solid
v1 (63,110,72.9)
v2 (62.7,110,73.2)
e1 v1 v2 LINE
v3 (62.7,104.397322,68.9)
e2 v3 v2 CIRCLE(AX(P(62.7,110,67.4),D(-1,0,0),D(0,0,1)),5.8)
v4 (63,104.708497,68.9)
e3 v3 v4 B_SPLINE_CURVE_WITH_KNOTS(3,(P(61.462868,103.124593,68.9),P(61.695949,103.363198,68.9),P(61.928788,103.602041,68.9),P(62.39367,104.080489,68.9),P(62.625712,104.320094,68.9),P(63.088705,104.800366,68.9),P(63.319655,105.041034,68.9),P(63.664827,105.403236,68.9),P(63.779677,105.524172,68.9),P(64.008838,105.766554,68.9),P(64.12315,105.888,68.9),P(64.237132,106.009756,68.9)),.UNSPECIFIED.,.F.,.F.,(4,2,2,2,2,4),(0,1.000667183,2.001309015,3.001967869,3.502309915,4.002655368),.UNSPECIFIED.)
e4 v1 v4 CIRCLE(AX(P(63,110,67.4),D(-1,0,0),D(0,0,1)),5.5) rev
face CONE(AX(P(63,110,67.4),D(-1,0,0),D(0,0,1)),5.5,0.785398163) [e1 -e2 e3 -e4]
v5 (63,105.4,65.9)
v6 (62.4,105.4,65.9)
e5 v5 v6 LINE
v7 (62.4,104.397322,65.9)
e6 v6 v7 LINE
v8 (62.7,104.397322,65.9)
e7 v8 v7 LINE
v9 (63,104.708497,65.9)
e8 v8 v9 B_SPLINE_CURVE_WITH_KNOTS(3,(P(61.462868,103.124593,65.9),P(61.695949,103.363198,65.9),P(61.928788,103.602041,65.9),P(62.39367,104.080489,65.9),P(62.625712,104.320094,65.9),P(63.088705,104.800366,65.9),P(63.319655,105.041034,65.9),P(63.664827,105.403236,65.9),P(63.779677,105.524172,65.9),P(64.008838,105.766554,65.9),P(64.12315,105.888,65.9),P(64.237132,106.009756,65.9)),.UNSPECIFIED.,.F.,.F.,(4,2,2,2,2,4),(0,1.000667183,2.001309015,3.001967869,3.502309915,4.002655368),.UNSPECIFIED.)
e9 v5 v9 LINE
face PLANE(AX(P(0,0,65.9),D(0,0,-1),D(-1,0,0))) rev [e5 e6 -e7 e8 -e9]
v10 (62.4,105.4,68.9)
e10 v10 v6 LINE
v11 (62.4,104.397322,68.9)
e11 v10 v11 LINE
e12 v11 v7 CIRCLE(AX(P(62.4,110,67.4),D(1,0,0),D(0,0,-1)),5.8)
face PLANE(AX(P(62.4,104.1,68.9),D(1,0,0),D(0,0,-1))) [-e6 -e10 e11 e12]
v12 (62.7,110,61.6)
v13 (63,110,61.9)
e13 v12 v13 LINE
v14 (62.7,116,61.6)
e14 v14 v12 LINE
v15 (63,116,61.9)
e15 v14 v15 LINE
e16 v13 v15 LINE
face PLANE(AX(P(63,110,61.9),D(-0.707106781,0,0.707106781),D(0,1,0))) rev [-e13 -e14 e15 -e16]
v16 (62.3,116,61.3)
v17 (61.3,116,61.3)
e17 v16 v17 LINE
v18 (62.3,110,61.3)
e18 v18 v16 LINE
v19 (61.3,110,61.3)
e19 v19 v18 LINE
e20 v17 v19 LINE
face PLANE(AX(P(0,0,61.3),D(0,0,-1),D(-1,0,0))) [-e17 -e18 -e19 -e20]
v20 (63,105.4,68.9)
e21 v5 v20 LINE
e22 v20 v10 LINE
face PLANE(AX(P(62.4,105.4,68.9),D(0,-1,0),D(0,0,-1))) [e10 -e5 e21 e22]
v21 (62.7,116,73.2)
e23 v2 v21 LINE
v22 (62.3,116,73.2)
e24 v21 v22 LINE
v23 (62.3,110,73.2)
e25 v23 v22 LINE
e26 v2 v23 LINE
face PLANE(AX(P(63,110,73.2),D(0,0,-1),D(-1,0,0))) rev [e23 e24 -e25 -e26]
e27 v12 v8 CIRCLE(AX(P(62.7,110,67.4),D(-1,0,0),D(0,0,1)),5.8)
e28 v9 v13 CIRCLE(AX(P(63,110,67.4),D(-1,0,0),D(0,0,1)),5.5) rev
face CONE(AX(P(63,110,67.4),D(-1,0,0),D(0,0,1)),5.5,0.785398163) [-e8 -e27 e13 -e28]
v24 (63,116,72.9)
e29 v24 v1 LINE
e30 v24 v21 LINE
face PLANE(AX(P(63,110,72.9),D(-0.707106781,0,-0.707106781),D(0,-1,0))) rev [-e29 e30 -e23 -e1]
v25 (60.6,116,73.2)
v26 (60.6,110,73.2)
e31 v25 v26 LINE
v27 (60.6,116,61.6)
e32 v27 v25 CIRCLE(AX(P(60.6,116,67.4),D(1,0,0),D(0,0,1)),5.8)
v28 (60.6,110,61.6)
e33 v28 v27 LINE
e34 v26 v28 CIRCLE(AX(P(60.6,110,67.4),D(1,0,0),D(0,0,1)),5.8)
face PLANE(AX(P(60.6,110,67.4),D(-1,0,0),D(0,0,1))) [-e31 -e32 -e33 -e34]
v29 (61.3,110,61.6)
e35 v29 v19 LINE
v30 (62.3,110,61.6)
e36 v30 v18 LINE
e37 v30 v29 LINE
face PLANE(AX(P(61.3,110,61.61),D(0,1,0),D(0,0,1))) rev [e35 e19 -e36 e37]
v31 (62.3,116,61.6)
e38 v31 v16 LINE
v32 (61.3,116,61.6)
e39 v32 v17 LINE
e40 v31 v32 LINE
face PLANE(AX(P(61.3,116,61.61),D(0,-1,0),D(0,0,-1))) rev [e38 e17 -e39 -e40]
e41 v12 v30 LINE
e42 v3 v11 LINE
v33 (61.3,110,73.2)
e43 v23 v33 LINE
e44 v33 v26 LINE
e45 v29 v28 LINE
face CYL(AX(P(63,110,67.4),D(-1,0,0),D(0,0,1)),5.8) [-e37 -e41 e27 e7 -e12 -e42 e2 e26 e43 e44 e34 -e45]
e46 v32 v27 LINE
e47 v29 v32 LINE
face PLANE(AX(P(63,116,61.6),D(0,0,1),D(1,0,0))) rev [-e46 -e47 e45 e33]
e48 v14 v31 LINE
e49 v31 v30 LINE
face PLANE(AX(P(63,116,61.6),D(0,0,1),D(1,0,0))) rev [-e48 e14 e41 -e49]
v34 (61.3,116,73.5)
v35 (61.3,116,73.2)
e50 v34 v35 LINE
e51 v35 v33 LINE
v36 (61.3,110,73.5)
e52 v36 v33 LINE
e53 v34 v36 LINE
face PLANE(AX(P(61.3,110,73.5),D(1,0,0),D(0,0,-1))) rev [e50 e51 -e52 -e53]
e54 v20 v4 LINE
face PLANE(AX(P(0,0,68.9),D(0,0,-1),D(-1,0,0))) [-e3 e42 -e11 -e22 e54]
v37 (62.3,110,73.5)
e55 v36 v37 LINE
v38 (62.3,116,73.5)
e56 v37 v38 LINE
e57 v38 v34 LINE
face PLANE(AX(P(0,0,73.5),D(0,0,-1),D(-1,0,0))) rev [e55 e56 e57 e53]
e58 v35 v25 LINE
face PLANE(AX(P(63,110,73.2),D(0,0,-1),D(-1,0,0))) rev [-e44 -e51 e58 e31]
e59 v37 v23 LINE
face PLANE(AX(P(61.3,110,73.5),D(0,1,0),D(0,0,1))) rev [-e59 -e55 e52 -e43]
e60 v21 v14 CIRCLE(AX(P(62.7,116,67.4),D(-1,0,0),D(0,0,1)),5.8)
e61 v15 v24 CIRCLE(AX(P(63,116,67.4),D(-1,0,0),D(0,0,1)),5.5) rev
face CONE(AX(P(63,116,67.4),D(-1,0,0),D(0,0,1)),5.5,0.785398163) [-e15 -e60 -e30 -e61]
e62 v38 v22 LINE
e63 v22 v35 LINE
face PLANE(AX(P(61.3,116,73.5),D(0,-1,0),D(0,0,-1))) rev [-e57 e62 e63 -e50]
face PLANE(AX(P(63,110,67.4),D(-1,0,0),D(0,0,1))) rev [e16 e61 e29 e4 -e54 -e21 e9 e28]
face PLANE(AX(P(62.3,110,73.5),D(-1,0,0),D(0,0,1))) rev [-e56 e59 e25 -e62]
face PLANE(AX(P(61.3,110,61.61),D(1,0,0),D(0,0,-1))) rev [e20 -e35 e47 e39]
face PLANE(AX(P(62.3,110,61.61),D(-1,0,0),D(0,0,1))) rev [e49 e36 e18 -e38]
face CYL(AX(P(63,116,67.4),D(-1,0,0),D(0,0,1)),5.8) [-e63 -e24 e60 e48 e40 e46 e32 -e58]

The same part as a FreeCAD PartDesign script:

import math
import FreeCAD as App
import Part
import Sketcher
from FreeCAD import Vector
Q = App.Units.Quantity


def edges_at(feature, points):
    """Names of the edges that pass closest to the given points."""
    edges = feature.Shape.Edges
    near = lambda p: min(range(len(edges)), key=lambda i: edges[i].distToShape(Part.Vertex(*p))[0])
    return sorted({f"Edge{near(p) + 1}" for p in points})

doc = App.newDocument("Part")
body = doc.addObject("PartDesign::Body", "Body")

# Sketch on YZ plane
sketch1 = body.newObject("Sketcher::SketchObject", "Sketch")
sketch1.AttachmentSupport = (doc.getObject("YZ_Plane"), [""])
sketch1.MapMode = "FlatFace"
sketch1.AttachmentOffset = App.Placement(Vector(0, 0, 60.6), App.Rotation())
sketch1.addGeometry([
    Part.LineSegment(Vector(116, 73, 0), Vector(110, 73, 0)),  # 0
    Part.ArcOfCircle(Part.Circle(Vector(110, 67, 0), Vector(0, 0, 1), 6), math.radians(90), math.radians(180)),  # 1
    Part.ArcOfCircle(Part.Circle(Vector(110, 67, 0), Vector(0, 0, 1), 6), math.radians(180), math.radians(270)),  # 2
    Part.LineSegment(Vector(110, 62, 0), Vector(116, 62, 0)),  # 3
    Part.ArcOfCircle(Part.Circle(Vector(116, 67, 0), Vector(0, 0, 1), 6), math.radians(-90), math.radians(0)),  # 4
    Part.ArcOfCircle(Part.Circle(Vector(116, 67, 0), Vector(0, 0, 1), 6), math.radians(0), math.radians(90)),  # 5
], False)
sketch1.addConstraint([
    Sketcher.Constraint("Tangent", 0, 2, 1, 1),
    Sketcher.Constraint("Tangent", 1, 2, 2, 1),
    Sketcher.Constraint("Tangent", 2, 2, 3, 1),
    Sketcher.Constraint("Tangent", 3, 2, 4, 1),
    Sketcher.Constraint("Tangent", 4, 2, 5, 1),
    Sketcher.Constraint("Tangent", 5, 2, 0, 1),
    Sketcher.Constraint("Horizontal", 0),
    Sketcher.Constraint("Horizontal", 3),
    Sketcher.Constraint("Equal", 1, 2),
    Sketcher.Constraint("Equal", 2, 4),
    Sketcher.Constraint("Horizontal", 5, 3, 1, 2),
    Sketcher.Constraint("Horizontal", 1, 2, 4, 2),
    Sketcher.Constraint("Radius", 1, Q("5.8 mm")),
    Sketcher.Constraint("DistanceX", 0, 2, 0, 1, Q("6 mm")),
    Sketcher.Constraint("DistanceX", -1, 1, 1, 3, Q("110 mm")),
    Sketcher.Constraint("DistanceY", -1, 1, 1, 3, Q("67.4 mm")),
])
pad1 = body.newObject("PartDesign::Pad", "Pad")
pad1.Profile = sketch1
pad1.Length = 2.4
doc.recompute()

chamfer = body.newObject("PartDesign::Chamfer", "Chamfer")
chamfer.Base = (pad1, edges_at(pad1, [
    (61.8, 121.8, 67.4),
    (63, 113, 73.2),
    (61.8, 104.2, 67.4),
    (63, 113, 61.6),
]))
chamfer.Size = 0.3

# Sketch on XY plane
sketch2 = body.newObject("Sketcher::SketchObject", "Sketch001")
sketch2.AttachmentSupport = (doc.getObject("XY_Plane"), [""])
sketch2.MapMode = "FlatFace"
sketch2.AttachmentOffset = App.Placement(Vector(0, 0, 61.3), App.Rotation())
sketch2.addGeometry([
    Part.LineSegment(Vector(61.3, 116, 0), Vector(61.3, 110, 0)),
    Part.LineSegment(Vector(61.3, 110, 0), Vector(62.3, 110, 0)),
    Part.LineSegment(Vector(62.3, 110, 0), Vector(62.3, 116, 0)),
    Part.LineSegment(Vector(62.3, 116, 0), Vector(61.3, 116, 0)),
], False)
sketch2.addConstraint([
    Sketcher.Constraint("Coincident", 0, 2, 1, 1),
    Sketcher.Constraint("Coincident", 1, 2, 2, 1),
    Sketcher.Constraint("Coincident", 2, 2, 3, 1),
    Sketcher.Constraint("Coincident", 3, 2, 0, 1),
    Sketcher.Constraint("Vertical", 0),
    Sketcher.Constraint("Horizontal", 1),
    Sketcher.Constraint("Vertical", 2),
    Sketcher.Constraint("Horizontal", 3),
    Sketcher.Constraint("DistanceX", 1, 1, 1, 2, Q("1 mm")),
    Sketcher.Constraint("DistanceY", 0, 2, 0, 1, Q("6 mm")),
    Sketcher.Constraint("DistanceY", -1, 1, 0, 2, Q("110 mm")),
    Sketcher.Constraint("DistanceX", -1, 1, 0, 2, Q("61.3 mm")),
])
pad2 = body.newObject("PartDesign::Pad", "Pad001")
pad2.Profile = sketch2
pad2.Length = 0.31

# Sketch on XY plane
sketch3 = body.newObject("Sketcher::SketchObject", "Sketch002")
sketch3.AttachmentSupport = (doc.getObject("XY_Plane"), [""])
sketch3.MapMode = "FlatFace"
sketch3.AttachmentOffset = App.Placement(Vector(0, 0, 73.19), App.Rotation())
sketch3.addGeometry([
    Part.LineSegment(Vector(61.3, 116, 0), Vector(61.3, 110, 0)),
    Part.LineSegment(Vector(61.3, 110, 0), Vector(62.3, 110, 0)),
    Part.LineSegment(Vector(62.3, 110, 0), Vector(62.3, 116, 0)),
    Part.LineSegment(Vector(62.3, 116, 0), Vector(61.3, 116, 0)),
], False)
sketch3.addConstraint([
    Sketcher.Constraint("Coincident", 0, 2, 1, 1),
    Sketcher.Constraint("Coincident", 1, 2, 2, 1),
    Sketcher.Constraint("Coincident", 2, 2, 3, 1),
    Sketcher.Constraint("Coincident", 3, 2, 0, 1),
    Sketcher.Constraint("Vertical", 0),
    Sketcher.Constraint("Horizontal", 1),
    Sketcher.Constraint("Vertical", 2),
    Sketcher.Constraint("Horizontal", 3),
    Sketcher.Constraint("DistanceX", 1, 1, 1, 2, Q("1 mm")),
    Sketcher.Constraint("DistanceY", 0, 2, 0, 1, Q("6 mm")),
    Sketcher.Constraint("DistanceY", -1, 1, 0, 2, Q("110 mm")),
    Sketcher.Constraint("DistanceX", -1, 1, 0, 2, Q("61.3 mm")),
])
pad3 = body.newObject("PartDesign::Pad", "Pad002")
pad3.Profile = sketch3
pad3.Length = 0.31
body2 = doc.addObject("PartDesign::Body", "Body001")

# Sketch on XY plane
sketch4 = body2.newObject("Sketcher::SketchObject", "Sketch003")
sketch4.AttachmentSupport = (doc.getObject("XY_Plane001"), [""])
sketch4.MapMode = "FlatFace"
sketch4.AttachmentOffset = App.Placement(Vector(0, 0, 65.9), App.Rotation())
sketch4.addGeometry([
    Part.LineSegment(Vector(62.4, 105.4, 0), Vector(62.4, 104.1, 0)),
    Part.LineSegment(Vector(62.4, 104.1, 0), Vector(63.1, 104.1, 0)),
    Part.LineSegment(Vector(63.1, 104.1, 0), Vector(63.1, 105.4, 0)),
    Part.LineSegment(Vector(63.1, 105.4, 0), Vector(62.4, 105.4, 0)),
], False)
sketch4.addConstraint([
    Sketcher.Constraint("Coincident", 0, 2, 1, 1),
    Sketcher.Constraint("Coincident", 1, 2, 2, 1),
    Sketcher.Constraint("Coincident", 2, 2, 3, 1),
    Sketcher.Constraint("Coincident", 3, 2, 0, 1),
    Sketcher.Constraint("Vertical", 0),
    Sketcher.Constraint("Horizontal", 1),
    Sketcher.Constraint("Vertical", 2),
    Sketcher.Constraint("Horizontal", 3),
    Sketcher.Constraint("DistanceX", 1, 1, 1, 2, Q("0.7 mm")),
    Sketcher.Constraint("DistanceY", 0, 2, 0, 1, Q("1.3 mm")),
    Sketcher.Constraint("DistanceX", -1, 1, 0, 2, Q("62.4 mm")),
    Sketcher.Constraint("DistanceY", -1, 1, 0, 2, Q("104.1 mm")),
])
pad4 = body2.newObject("PartDesign::Pad", "Pad003")
pad4.Profile = sketch4
pad4.Length = 3
doc.recompute()

boolean = body.newObject("PartDesign::Boolean", "Boolean")
boolean.Type = "Cut"
boolean.addObjects([body2])

doc.recompute()
